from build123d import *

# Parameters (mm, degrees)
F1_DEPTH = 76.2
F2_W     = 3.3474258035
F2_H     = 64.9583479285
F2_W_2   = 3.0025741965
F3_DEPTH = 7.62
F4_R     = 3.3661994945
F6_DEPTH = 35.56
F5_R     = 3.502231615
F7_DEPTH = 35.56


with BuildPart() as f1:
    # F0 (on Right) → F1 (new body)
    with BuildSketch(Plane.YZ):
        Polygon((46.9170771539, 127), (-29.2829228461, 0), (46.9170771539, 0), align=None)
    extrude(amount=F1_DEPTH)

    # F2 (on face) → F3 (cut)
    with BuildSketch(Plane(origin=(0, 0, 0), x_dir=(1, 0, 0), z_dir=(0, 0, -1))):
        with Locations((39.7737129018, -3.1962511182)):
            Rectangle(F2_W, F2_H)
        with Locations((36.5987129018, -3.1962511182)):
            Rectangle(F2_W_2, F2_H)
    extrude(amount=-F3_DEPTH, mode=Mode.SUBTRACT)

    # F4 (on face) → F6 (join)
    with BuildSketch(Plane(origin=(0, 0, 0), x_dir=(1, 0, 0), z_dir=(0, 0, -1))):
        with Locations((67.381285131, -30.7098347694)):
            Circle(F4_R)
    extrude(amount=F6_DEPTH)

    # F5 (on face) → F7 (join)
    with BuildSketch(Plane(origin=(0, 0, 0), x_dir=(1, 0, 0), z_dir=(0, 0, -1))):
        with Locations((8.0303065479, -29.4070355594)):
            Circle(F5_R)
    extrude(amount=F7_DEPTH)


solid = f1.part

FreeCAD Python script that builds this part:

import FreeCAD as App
import Part
import Sketcher

V = App.Vector
Q = App.Units.Quantity

doc = App.newDocument("Part")
body = doc.addObject("PartDesign::Body", "Body")

# Sketch on YZ plane
sketch1 = body.newObject("Sketcher::SketchObject", "Sketch")
sketch1.AttachmentSupport = (doc.getObject("YZ_Plane"), [""])
sketch1.MapMode = "FlatFace"
sketch1.addGeometry([
    Part.LineSegment(V(47, 127, 0), V(-29, 0, 0)),
    Part.LineSegment(V(-29, 0, 0), V(47, 0, 0)),
    Part.LineSegment(V(47, 0, 0), V(47, 127, 0)),
], False)
sketch1.addConstraint([
    Sketcher.Constraint("Coincident", 0, 2, 1, 1),
    Sketcher.Constraint("Coincident", 1, 2, 2, 1),
    Sketcher.Constraint("Coincident", 2, 2, 0, 1),
    Sketcher.Constraint("Horizontal", 1),
    Sketcher.Constraint("Vertical", 2),
    Sketcher.Constraint("PointOnObject", 0, 2, -1),
    Sketcher.Constraint("DistanceX", 1, 1, 1, 2, Q("3 in")),
    Sketcher.Constraint("DistanceY", 2, 1, 2, 2, Q("5 in")),
    Sketcher.Constraint("DistanceX", 0, 2, -1, 1, 29.282923),
])
pad1 = body.newObject("PartDesign::Pad", "Pad")
pad1.Profile = sketch1
pad1.Length = Q("3 in")

# Sketch on XY plane
sketch2 = body.newObject("Sketcher::SketchObject", "Sketch001")
sketch2.AttachmentSupport = (doc.getObject("XY_Plane"), [""])
sketch2.MapMode = "FlatFace"
sketch2.addGeometry([
    Part.LineSegment(V(41, 36, 0), V(41, -29, 0)),
    Part.LineSegment(V(41, -29, 0), V(35, -29, 0)),
    Part.LineSegment(V(35, -29, 0), V(35, 36, 0)),
    Part.LineSegment(V(35, 36, 0), V(41, 36, 0)),
], False)
sketch2.addConstraint([
    Sketcher.Constraint("Coincident", 0, 2, 1, 1),
    Sketcher.Constraint("Coincident", 1, 2, 2, 1),
    Sketcher.Constraint("Coincident", 2, 2, 3, 1),
    Sketcher.Constraint("Coincident", 3, 2, 0, 1),
    Sketcher.Constraint("Vertical", 0),
    Sketcher.Constraint("Horizontal", 1),
    Sketcher.Constraint("Vertical", 2),
    Sketcher.Constraint("Horizontal", 3),
    Sketcher.Constraint("DistanceX", 1, 2, 1, 1, Q("0.25 in")),
    Sketcher.Constraint("DistanceY", 0, 2, 0, 1, 64.958348),
    Sketcher.Constraint("DistanceX", -1, 1, 0, 2, 41.447426),
    Sketcher.Constraint("DistanceY", 0, 2, -1, 1, 29.282923),
])
pocket1 = body.newObject("PartDesign::Pocket", "Pocket")
pocket1.Profile = sketch2
pocket1.Length = Q("0.3 in")
pocket1.Reversed = True

# Sketch on XY plane
sketch3 = body.newObject("Sketcher::SketchObject", "Sketch002")
sketch3.AttachmentSupport = (doc.getObject("XY_Plane"), [""])
sketch3.MapMode = "FlatFace"
sketch3.addGeometry(Part.Circle(V(67.4, 30.7, 0), V(0, 0, 1), 3.4), False)
sketch3.addConstraint([
    Sketcher.Constraint("Diameter", 0, 6.732399),
    Sketcher.Constraint("DistanceX", -1, 1, 0, 3, 67.381285),
    Sketcher.Constraint("DistanceY", -1, 1, 0, 3, 30.709835),
])
pad2 = body.newObject("PartDesign::Pad", "Pad001")
pad2.Profile = sketch3
pad2.Length = Q("1.4 in")
pad2.Reversed = True

# Sketch on XY plane
sketch4 = body.newObject("Sketcher::SketchObject", "Sketch003")
sketch4.AttachmentSupport = (doc.getObject("XY_Plane"), [""])
sketch4.MapMode = "FlatFace"
sketch4.addGeometry(Part.Circle(V(8, 29.4, 0), V(0, 0, 1), 3.5), False)
sketch4.addConstraint([
    Sketcher.Constraint("Diameter", 0, 7.004463),
    Sketcher.Constraint("DistanceX", -1, 1, 0, 3, 8.030307),
    Sketcher.Constraint("DistanceY", -1, 1, 0, 3, 29.407036),
])
pad3 = body.newObject("PartDesign::Pad", "Pad002")
pad3.Profile = sketch4
pad3.Length = Q("1.4 in")
pad3.Reversed = True

doc.recompute()
